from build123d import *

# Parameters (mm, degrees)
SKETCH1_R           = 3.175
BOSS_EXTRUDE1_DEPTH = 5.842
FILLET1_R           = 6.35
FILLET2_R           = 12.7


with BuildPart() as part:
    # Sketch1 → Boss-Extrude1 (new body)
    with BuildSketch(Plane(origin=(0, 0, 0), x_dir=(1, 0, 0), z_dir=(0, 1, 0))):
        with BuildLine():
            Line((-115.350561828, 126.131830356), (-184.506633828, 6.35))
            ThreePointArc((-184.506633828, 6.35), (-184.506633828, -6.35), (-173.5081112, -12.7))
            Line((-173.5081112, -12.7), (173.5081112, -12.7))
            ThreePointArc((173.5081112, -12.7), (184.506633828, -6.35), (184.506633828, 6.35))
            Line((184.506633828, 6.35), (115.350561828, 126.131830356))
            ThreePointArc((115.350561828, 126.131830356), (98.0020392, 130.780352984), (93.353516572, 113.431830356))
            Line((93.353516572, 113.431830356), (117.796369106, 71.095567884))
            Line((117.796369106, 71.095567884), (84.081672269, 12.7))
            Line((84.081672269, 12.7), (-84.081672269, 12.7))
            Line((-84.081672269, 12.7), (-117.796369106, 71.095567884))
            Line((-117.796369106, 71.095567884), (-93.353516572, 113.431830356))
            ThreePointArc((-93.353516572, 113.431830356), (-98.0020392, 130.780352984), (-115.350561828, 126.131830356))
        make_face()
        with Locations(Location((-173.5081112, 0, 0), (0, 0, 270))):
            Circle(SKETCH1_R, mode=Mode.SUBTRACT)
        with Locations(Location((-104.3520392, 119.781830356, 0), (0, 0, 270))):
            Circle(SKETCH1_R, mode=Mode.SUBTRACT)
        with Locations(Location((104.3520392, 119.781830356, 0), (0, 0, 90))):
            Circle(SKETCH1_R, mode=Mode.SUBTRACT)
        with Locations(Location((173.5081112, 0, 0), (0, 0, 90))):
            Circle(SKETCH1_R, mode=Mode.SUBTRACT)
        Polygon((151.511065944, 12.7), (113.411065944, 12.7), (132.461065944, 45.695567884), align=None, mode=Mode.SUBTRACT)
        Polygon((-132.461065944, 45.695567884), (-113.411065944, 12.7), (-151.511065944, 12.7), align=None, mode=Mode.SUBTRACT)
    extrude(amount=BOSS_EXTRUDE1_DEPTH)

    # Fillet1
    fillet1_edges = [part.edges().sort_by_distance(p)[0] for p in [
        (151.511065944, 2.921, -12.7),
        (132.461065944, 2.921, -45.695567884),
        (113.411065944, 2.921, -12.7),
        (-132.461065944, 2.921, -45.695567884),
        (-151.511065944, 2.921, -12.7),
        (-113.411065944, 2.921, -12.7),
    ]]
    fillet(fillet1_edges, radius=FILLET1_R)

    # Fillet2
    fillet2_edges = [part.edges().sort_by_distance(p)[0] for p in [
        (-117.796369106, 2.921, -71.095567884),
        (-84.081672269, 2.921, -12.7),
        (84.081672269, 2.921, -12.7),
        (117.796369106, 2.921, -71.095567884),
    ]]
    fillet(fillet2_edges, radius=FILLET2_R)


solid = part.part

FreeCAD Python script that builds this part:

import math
import FreeCAD as App
import Part
import Sketcher

V = App.Vector
Q = App.Units.Quantity


def edges_at(feature, points):
    """Names of the edges that pass closest to the given points."""
    edges = feature.Shape.Edges
    near = lambda p: min(range(len(edges)), key=lambda i: edges[i].distToShape(Part.Vertex(*p))[0])
    return sorted({f"Edge{near(p) + 1}" for p in points})

doc = App.newDocument("Part")
body = doc.addObject("PartDesign::Body", "Body")

sketch1 = body.newObject("Sketcher::SketchObject", "Sketch")
sketch1.AttachmentSupport = (doc.getObject("XZ_Plane"), [""])
sketch1.MapMode = "FlatFace"
sketch1.addGeometry([
    Part.LineSegment(V(-115.350562, -126.13183, 0), V(-184.506634, -6.35, 0)),
    Part.ArcOfCircle(Part.Circle(V(-173.508111, 0, 0), V(0, 0, 1), 12.7), math.radians(90), math.radians(210)),
    Part.LineSegment(V(-173.508111, 12.7, 0), V(173.508111, 12.7, 0)),
    Part.ArcOfCircle(Part.Circle(V(173.508111, 0, 0), V(0, 0, 1), 12.7), math.radians(-30), math.radians(90)),
    Part.LineSegment(V(184.506634, -6.35, 0), V(115.350562, -126.13183, 0)),
    Part.ArcOfCircle(Part.Circle(V(104.352039, -119.78183, 0), V(0, 0, 1), 12.7), math.radians(150), math.radians(330)),
    Part.LineSegment(V(93.353517, -113.43183, 0), V(117.796369, -71.095568, 0)),
    Part.LineSegment(V(117.796369, -71.095568, 0), V(84.081672, -12.7, 0)),
    Part.LineSegment(V(84.081672, -12.7, 0), V(-84.081672, -12.7, 0)),
    Part.LineSegment(V(-84.081672, -12.7, 0), V(-117.796369, -71.095568, 0)),
    Part.LineSegment(V(-117.796369, -71.095568, 0), V(-93.353517, -113.43183, 0)),
    Part.ArcOfCircle(Part.Circle(V(-104.352039, -119.78183, 0), V(0, 0, 1), 12.7), math.radians(-150), math.radians(30)),
    Part.Circle(V(-173.508111, 0, 0), V(0, 0, 1), 3.175),
    Part.LineSegment(V(-151.511066, -12.7, 0), V(-132.461066, -45.695568, 0)),
    Part.LineSegment(V(-132.461066, -45.695568, 0), V(-113.411066, -12.7, 0)),
    Part.LineSegment(V(-113.411066, -12.7, 0), V(-151.511066, -12.7, 0)),
    Part.Circle(V(173.508111, 0, 0), V(0, 0, 1), 3.175),
    Part.LineSegment(V(132.461066, -45.695568, 0), V(151.511066, -12.7, 0)),
    Part.LineSegment(V(151.511066, -12.7, 0), V(113.411066, -12.7, 0)),
    Part.LineSegment(V(113.411066, -12.7, 0), V(132.461066, -45.695568, 0)),
    Part.Circle(V(-104.352039, -119.78183, 0), V(0, 0, 1), 3.175),
    Part.Circle(V(104.352039, -119.78183, 0), V(0, 0, 1), 3.175),
], False)
sketch1.addConstraint([
    Sketcher.Constraint("Tangent", 0, 2, 1, 2),
    Sketcher.Constraint("Tangent", 1, 1, 2, 1),
    Sketcher.Constraint("Tangent", 2, 2, 3, 2),
    Sketcher.Constraint("Tangent", 3, 1, 4, 1),
    Sketcher.Constraint("Tangent", 4, 2, 5, 2),
    Sketcher.Constraint("Tangent", 5, 1, 6, 1),
    Sketcher.Constraint("Coincident", 6, 2, 7, 1),
    Sketcher.Constraint("Coincident", 7, 2, 8, 1),
    Sketcher.Constraint("Coincident", 8, 2, 9, 1),
    Sketcher.Constraint("Coincident", 9, 2, 10, 1),
    Sketcher.Constraint("Tangent", 10, 2, 11, 2),
    Sketcher.Constraint("Tangent", 11, 1, 0, 1),
    Sketcher.Constraint("Coincident", 13, 2, 14, 1),
    Sketcher.Constraint("Coincident", 14, 2, 15, 1),
    Sketcher.Constraint("Coincident", 15, 2, 13, 1),
    Sketcher.Constraint("Coincident", 17, 2, 18, 1),
    Sketcher.Constraint("Coincident", 18, 2, 19, 1),
    Sketcher.Constraint("Coincident", 19, 2, 17, 1),
    Sketcher.Constraint("Horizontal", 2),
    Sketcher.Constraint("Horizontal", 8),
    Sketcher.Constraint("Horizontal", 15),
    Sketcher.Constraint("Horizontal", 18),
    Sketcher.Constraint("Coincident", 12, 3, 1, 3),
    Sketcher.Constraint("Coincident", 16, 3, 3, 3),
    Sketcher.Constraint("Coincident", 20, 3, 11, 3),
    Sketcher.Constraint("Coincident", 21, 3, 5, 3),
    Sketcher.Constraint("Equal", 1, 3),
    Sketcher.Constraint("Equal", 3, 5),
    Sketcher.Constraint("Equal", 5, 11),
    Sketcher.Constraint("Equal", 12, 16),
    Sketcher.Constraint("Equal", 16, 20),
    Sketcher.Constraint("Equal", 20, 21),
    Sketcher.Constraint("Symmetric", 1, 3, 3, 3, -1, 1),
    Sketcher.Constraint("Symmetric", 5, 3, 11, 3, -2),
    Sketcher.Constraint("Symmetric", 6, 2, 9, 2, -2),
    Sketcher.Constraint("Symmetric", 15, 2, 17, 2, -2),
    Sketcher.Constraint("Symmetric", 13, 2, 19, 2, -2),
    Sketcher.Constraint("Parallel", 4, 6),
    Sketcher.Constraint("Parallel", 0, 7),
    Sketcher.Constraint("Parallel", 6, 9),
    Sketcher.Constraint("Parallel", 10, 13),
    Sketcher.Constraint("Parallel", 9, 14),
    Sketcher.Constraint("Parallel", 13, 19),
    Sketcher.Constraint("Horizontal", 8, 2, 14, 2),
    Sketcher.Constraint("Radius", 1, Q("0.5 in")),
    Sketcher.Constraint("Diameter", 12, Q("0.25 in")),
    Sketcher.Constraint("DistanceX", 15, 2, 15, 1, Q("1.5 in")),
    Sketcher.Constraint("Angle", 0, Q("120 deg")),
    Sketcher.Constraint("DistanceY", 7, 2, 2, 2, Q("1 in")),
    Sketcher.Constraint("DistanceY", 9, 2, 13, 2, Q("1 in")),
    Sketcher.Constraint("DistanceX", 2, 1, 2, 2, 347.016222),
    Sketcher.Constraint("DistanceX", -1, 1, 5, 3, 104.352039),
    Sketcher.Constraint("DistanceX", 13, 2, -1, 1, 132.461066),
])
pad1 = body.newObject("PartDesign::Pad", "Pad")
pad1.Profile = sketch1
pad1.Length = Q("0.23 in")
pad1.Reversed = True
doc.recompute()

fillet = body.newObject("PartDesign::Fillet", "Fillet")
fillet.Base = (pad1, edges_at(pad1, [
    (151.511, 2.921, -12.7),
    (132.461, 2.921, -45.696),
    (113.411, 2.921, -12.7),
    (-132.461, 2.921, -45.696),
    (-151.511, 2.921, -12.7),
    (-113.411, 2.921, -12.7),
]))
fillet.Radius = Q("0.25 in")
doc.recompute()

fillet2 = body.newObject("PartDesign::Fillet", "Fillet001")
fillet2.Base = (fillet, edges_at(fillet, [
    (-117.796, 2.921, -71.096),
    (-84.082, 2.921, -12.7),
    (84.082, 2.921, -12.7),
    (117.796, 2.921, -71.096),
]))
fillet2.Radius = Q("0.5 in")

doc.recompute()
